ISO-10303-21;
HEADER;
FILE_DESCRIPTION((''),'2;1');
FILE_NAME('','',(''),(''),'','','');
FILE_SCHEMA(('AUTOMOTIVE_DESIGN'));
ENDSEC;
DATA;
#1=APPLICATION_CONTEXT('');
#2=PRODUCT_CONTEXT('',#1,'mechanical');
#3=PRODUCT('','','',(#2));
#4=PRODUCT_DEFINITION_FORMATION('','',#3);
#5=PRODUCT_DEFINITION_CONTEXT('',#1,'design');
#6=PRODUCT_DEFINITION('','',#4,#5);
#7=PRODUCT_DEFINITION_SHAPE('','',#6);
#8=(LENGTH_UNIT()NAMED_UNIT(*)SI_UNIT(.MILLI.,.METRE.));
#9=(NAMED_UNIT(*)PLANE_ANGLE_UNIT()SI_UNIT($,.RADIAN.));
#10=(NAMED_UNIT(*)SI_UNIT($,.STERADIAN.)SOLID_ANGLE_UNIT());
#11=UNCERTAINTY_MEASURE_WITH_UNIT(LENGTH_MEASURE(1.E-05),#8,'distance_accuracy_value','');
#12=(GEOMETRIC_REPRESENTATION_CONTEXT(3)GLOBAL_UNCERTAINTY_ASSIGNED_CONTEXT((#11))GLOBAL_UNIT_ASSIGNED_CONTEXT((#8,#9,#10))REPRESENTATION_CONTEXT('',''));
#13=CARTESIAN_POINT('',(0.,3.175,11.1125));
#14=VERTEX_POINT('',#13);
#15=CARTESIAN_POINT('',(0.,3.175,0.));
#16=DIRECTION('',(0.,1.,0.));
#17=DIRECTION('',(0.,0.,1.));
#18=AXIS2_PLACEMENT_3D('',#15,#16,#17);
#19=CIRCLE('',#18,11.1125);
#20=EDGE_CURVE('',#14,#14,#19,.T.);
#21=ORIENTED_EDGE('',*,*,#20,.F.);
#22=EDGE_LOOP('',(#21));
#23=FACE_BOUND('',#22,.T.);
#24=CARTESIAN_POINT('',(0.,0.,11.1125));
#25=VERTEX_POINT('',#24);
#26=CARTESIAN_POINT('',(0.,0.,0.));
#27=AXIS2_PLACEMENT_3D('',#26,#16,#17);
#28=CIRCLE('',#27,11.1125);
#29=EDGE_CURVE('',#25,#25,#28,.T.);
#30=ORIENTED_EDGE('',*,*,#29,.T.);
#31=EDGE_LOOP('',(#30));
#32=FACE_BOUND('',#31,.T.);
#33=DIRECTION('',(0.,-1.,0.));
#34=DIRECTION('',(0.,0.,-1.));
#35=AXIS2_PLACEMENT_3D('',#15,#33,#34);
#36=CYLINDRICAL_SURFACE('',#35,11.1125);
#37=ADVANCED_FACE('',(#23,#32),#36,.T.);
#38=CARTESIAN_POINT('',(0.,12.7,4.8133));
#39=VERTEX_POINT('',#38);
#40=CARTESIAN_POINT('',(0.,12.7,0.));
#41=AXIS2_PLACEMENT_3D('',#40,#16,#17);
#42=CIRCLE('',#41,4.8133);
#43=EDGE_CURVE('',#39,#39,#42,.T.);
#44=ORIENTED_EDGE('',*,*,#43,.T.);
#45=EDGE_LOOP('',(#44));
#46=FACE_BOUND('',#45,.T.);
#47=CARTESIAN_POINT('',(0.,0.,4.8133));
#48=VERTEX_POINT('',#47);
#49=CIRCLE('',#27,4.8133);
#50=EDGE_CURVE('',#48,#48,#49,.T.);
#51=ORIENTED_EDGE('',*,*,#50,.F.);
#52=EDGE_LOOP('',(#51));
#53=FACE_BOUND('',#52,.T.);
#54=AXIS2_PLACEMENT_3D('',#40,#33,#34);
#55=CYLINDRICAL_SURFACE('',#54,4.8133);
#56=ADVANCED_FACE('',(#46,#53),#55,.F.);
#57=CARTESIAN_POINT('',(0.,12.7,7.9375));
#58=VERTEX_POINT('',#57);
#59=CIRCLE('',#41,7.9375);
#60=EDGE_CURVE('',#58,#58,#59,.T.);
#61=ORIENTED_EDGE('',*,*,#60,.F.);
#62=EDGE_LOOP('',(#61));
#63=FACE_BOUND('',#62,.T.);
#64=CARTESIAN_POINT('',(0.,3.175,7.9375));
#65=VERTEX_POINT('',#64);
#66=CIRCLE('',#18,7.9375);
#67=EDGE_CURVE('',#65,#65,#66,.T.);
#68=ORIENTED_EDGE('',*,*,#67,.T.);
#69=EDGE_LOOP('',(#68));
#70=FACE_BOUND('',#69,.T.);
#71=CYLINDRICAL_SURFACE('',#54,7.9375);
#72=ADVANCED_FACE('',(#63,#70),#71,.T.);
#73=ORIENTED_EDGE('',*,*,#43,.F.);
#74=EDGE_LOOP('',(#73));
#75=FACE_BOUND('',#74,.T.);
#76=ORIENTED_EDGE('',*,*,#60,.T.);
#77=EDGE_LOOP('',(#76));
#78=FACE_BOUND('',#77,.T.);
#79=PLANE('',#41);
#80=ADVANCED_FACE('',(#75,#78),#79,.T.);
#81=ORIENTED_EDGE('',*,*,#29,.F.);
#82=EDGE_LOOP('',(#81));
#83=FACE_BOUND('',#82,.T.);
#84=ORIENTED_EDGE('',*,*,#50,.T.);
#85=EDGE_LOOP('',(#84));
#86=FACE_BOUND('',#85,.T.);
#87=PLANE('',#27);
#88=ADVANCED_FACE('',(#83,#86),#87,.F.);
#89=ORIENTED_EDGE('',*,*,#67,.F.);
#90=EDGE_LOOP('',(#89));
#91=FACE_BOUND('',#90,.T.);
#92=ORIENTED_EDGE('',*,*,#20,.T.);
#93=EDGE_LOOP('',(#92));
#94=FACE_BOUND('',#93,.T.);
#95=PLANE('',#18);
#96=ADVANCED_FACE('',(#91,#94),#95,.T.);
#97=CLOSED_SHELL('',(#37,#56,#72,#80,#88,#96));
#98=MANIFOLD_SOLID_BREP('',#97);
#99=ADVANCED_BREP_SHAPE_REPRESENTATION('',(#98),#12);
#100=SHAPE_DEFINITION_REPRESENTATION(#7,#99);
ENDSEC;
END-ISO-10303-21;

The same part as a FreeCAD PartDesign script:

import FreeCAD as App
import Part
import Sketcher
from FreeCAD import Vector
Q = App.Units.Quantity

doc = App.newDocument("Part")
body = doc.addObject("PartDesign::Body", "Body")

# Sketch on XZ plane
sketch1 = body.newObject("Sketcher::SketchObject", "Sketch")
sketch1.AttachmentSupport = (doc.getObject("XZ_Plane"), [""])
sketch1.MapMode = "FlatFace"
sketch1.addGeometry([
    Part.Circle(Vector(0, 0, 0), Vector(0, 0, 1), 7.9),
    Part.Circle(Vector(0, 0, 0), Vector(0, 0, 1), 4.8),
], False)
sketch1.addConstraint([
    Sketcher.Constraint("Coincident", 0, 3, -1, 1),
    Sketcher.Constraint("Coincident", 1, 3, -1, 1),
    Sketcher.Constraint("Diameter", 0, Q("0.625 in")),
    Sketcher.Constraint("Diameter", 1, Q("0.379 in")),
])
pad1 = body.newObject("PartDesign::Pad", "Pad")
pad1.Profile = sketch1
pad1.Length = Q("0.5 in")
pad1.Reversed = True

# Sketch on XZ plane
sketch2 = body.newObject("Sketcher::SketchObject", "Sketch001")
sketch2.AttachmentSupport = (doc.getObject("XZ_Plane"), [""])
sketch2.MapMode = "FlatFace"
sketch2.addGeometry([
    Part.Circle(Vector(0, 0, 0), Vector(0, 0, 1), 11),
    Part.Circle(Vector(0, 0, 0), Vector(0, 0, 1), 8),
], False)
sketch2.addConstraint([
    Sketcher.Constraint("Coincident", 0, 3, -1, 1),
    Sketcher.Constraint("Coincident", 1, 3, -1, 1),
    Sketcher.Constraint("Diameter", 0, Q("0.875 in")),
    Sketcher.Constraint("Diameter", 1, Q("0.625 in")),
])
pad2 = body.newObject("PartDesign::Pad", "Pad001")
pad2.Profile = sketch2
pad2.Length = Q("0.125 in")
pad2.Reversed = True

doc.recompute()
